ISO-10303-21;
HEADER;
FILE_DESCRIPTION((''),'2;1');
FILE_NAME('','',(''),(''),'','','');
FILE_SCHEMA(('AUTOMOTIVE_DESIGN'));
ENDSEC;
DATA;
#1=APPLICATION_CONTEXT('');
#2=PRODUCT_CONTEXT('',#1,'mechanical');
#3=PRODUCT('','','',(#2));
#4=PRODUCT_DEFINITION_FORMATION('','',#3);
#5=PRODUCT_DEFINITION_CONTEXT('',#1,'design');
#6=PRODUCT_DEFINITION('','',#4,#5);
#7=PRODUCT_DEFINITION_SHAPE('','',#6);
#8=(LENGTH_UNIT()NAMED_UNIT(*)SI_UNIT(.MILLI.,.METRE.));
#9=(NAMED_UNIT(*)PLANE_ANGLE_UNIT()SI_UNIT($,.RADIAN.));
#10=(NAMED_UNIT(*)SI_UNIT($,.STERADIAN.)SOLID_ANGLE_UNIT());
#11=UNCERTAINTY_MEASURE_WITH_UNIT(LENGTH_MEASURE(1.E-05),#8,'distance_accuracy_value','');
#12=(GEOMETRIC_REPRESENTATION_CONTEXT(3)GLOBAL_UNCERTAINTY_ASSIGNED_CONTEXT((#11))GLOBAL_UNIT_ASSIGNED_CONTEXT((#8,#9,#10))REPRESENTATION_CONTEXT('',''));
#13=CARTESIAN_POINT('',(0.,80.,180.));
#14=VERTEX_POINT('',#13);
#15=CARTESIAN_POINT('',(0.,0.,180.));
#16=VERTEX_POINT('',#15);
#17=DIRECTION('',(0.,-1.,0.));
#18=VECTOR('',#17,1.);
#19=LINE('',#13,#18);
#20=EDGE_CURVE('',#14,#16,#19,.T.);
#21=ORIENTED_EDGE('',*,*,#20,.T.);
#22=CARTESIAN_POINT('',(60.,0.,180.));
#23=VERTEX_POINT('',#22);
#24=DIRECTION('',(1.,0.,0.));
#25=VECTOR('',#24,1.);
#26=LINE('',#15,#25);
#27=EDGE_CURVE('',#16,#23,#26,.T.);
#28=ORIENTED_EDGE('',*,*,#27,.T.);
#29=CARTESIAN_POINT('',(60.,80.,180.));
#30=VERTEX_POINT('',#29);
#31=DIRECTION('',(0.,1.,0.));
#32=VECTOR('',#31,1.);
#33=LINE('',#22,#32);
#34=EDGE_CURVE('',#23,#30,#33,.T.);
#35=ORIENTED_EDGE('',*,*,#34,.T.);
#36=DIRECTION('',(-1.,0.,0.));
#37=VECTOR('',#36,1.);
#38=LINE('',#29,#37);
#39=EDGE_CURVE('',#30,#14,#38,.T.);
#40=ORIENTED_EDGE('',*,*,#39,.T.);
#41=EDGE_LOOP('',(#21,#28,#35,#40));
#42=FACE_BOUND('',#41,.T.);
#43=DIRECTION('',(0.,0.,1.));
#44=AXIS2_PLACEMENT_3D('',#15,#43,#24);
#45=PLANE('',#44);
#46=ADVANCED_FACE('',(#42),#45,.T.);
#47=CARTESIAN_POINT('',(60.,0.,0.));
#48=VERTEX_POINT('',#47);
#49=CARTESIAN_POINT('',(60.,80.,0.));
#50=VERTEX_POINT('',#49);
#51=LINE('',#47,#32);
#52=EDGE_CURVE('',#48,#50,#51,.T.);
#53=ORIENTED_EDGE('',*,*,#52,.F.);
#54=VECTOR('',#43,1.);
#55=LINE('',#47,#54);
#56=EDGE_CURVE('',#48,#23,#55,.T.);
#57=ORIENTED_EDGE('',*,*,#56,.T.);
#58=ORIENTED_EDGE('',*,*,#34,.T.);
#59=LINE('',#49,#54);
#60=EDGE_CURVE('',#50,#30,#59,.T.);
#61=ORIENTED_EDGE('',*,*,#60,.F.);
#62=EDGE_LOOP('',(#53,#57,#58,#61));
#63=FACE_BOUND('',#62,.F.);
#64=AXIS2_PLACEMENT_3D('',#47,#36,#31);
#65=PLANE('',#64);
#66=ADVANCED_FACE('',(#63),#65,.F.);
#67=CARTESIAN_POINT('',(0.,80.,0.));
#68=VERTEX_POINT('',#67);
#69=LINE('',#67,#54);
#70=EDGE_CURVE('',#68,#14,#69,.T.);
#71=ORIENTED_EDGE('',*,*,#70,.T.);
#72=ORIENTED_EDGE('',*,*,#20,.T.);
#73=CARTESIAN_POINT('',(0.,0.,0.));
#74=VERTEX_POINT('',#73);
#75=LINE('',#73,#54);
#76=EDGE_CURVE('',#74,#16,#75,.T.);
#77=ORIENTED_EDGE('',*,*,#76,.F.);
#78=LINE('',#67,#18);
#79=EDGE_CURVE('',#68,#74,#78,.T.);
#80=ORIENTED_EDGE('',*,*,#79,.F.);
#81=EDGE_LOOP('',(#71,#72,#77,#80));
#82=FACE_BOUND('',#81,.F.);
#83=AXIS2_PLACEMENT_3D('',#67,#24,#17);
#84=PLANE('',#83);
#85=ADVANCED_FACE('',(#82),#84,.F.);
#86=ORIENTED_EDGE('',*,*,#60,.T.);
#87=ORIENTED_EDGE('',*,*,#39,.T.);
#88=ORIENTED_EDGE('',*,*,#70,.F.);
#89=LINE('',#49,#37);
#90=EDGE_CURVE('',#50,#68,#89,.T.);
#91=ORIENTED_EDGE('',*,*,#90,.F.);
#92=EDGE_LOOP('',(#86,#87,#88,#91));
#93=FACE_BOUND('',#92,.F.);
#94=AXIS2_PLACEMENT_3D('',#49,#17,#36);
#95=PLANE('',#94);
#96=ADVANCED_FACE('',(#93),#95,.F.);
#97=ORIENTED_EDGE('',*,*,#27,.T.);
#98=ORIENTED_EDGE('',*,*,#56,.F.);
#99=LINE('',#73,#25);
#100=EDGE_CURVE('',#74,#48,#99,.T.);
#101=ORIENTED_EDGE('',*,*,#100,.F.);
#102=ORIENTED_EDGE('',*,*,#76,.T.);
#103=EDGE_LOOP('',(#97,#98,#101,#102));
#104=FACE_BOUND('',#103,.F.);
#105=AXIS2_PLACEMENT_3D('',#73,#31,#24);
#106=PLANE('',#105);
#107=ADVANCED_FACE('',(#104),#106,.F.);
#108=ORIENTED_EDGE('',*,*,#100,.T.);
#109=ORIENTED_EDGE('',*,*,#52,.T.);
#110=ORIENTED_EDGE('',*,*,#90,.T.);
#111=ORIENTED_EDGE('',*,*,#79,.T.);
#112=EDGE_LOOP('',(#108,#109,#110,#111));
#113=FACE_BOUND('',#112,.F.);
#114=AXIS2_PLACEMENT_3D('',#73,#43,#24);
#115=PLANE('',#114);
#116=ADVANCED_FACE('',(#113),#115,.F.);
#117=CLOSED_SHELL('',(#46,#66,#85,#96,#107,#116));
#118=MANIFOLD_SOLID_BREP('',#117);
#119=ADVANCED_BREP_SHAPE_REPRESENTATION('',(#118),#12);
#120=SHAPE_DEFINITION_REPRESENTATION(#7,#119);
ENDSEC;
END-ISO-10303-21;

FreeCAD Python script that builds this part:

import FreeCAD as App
import Part
import Sketcher

V = App.Vector

doc = App.newDocument("Part")
params = doc.addObject("Spreadsheet::Sheet", "Params")
for row, (alias, value) in enumerate([
    ("sketch1_width", "60 mm"),
    ("sketch1_height", "80 mm"),
    ("pad1_length", "180 mm"),
], start=1):
    params.set(f"A{row}", alias)
    params.set(f"B{row}", "=" + value)
    params.setAlias(f"B{row}", alias)

body = doc.addObject("PartDesign::Body", "Body")

sketch1 = doc.addObject("Sketcher::SketchObject", "Sketch")
body.addObject(sketch1)
sketch1.AttachmentSupport = (doc.XY_Plane, [""])
sketch1.MapMode = "FlatFace"
sketch1.addGeometry([
    Part.LineSegment(V(0, 80, 0), V(0, 0, 0)),
    Part.LineSegment(V(0, 0, 0), V(60, 0, 0)),
    Part.LineSegment(V(60, 0, 0), V(60, 80, 0)),
    Part.LineSegment(V(60, 80, 0), V(0, 80, 0)),
], False)
sketch1.addConstraint([
    Sketcher.Constraint("Coincident", 0, 2, 1, 1),
    Sketcher.Constraint("Coincident", 1, 2, 2, 1),
    Sketcher.Constraint("Coincident", 2, 2, 3, 1),
    Sketcher.Constraint("Coincident", 3, 2, 0, 1),
    Sketcher.Constraint("Vertical", 0),
    Sketcher.Constraint("Horizontal", 1),
    Sketcher.Constraint("Vertical", 2),
    Sketcher.Constraint("Horizontal", 3),
    Sketcher.Constraint("Coincident", 0, 2, -1, 1),
    Sketcher.Constraint("DistanceX", 1, 1, 1, 2, 60.0),
    Sketcher.Constraint("DistanceY", 0, 2, 0, 1, 80.0),
])
sketch1.setExpression("Constraints[9]", "Params.sketch1_width")
sketch1.setExpression("Constraints[10]", "Params.sketch1_height")
pad1 = doc.addObject("PartDesign::Pad", "Pad")
body.addObject(pad1)
pad1.Profile = sketch1
pad1.setExpression("Length", "Params.pad1_length")

doc.recompute()
